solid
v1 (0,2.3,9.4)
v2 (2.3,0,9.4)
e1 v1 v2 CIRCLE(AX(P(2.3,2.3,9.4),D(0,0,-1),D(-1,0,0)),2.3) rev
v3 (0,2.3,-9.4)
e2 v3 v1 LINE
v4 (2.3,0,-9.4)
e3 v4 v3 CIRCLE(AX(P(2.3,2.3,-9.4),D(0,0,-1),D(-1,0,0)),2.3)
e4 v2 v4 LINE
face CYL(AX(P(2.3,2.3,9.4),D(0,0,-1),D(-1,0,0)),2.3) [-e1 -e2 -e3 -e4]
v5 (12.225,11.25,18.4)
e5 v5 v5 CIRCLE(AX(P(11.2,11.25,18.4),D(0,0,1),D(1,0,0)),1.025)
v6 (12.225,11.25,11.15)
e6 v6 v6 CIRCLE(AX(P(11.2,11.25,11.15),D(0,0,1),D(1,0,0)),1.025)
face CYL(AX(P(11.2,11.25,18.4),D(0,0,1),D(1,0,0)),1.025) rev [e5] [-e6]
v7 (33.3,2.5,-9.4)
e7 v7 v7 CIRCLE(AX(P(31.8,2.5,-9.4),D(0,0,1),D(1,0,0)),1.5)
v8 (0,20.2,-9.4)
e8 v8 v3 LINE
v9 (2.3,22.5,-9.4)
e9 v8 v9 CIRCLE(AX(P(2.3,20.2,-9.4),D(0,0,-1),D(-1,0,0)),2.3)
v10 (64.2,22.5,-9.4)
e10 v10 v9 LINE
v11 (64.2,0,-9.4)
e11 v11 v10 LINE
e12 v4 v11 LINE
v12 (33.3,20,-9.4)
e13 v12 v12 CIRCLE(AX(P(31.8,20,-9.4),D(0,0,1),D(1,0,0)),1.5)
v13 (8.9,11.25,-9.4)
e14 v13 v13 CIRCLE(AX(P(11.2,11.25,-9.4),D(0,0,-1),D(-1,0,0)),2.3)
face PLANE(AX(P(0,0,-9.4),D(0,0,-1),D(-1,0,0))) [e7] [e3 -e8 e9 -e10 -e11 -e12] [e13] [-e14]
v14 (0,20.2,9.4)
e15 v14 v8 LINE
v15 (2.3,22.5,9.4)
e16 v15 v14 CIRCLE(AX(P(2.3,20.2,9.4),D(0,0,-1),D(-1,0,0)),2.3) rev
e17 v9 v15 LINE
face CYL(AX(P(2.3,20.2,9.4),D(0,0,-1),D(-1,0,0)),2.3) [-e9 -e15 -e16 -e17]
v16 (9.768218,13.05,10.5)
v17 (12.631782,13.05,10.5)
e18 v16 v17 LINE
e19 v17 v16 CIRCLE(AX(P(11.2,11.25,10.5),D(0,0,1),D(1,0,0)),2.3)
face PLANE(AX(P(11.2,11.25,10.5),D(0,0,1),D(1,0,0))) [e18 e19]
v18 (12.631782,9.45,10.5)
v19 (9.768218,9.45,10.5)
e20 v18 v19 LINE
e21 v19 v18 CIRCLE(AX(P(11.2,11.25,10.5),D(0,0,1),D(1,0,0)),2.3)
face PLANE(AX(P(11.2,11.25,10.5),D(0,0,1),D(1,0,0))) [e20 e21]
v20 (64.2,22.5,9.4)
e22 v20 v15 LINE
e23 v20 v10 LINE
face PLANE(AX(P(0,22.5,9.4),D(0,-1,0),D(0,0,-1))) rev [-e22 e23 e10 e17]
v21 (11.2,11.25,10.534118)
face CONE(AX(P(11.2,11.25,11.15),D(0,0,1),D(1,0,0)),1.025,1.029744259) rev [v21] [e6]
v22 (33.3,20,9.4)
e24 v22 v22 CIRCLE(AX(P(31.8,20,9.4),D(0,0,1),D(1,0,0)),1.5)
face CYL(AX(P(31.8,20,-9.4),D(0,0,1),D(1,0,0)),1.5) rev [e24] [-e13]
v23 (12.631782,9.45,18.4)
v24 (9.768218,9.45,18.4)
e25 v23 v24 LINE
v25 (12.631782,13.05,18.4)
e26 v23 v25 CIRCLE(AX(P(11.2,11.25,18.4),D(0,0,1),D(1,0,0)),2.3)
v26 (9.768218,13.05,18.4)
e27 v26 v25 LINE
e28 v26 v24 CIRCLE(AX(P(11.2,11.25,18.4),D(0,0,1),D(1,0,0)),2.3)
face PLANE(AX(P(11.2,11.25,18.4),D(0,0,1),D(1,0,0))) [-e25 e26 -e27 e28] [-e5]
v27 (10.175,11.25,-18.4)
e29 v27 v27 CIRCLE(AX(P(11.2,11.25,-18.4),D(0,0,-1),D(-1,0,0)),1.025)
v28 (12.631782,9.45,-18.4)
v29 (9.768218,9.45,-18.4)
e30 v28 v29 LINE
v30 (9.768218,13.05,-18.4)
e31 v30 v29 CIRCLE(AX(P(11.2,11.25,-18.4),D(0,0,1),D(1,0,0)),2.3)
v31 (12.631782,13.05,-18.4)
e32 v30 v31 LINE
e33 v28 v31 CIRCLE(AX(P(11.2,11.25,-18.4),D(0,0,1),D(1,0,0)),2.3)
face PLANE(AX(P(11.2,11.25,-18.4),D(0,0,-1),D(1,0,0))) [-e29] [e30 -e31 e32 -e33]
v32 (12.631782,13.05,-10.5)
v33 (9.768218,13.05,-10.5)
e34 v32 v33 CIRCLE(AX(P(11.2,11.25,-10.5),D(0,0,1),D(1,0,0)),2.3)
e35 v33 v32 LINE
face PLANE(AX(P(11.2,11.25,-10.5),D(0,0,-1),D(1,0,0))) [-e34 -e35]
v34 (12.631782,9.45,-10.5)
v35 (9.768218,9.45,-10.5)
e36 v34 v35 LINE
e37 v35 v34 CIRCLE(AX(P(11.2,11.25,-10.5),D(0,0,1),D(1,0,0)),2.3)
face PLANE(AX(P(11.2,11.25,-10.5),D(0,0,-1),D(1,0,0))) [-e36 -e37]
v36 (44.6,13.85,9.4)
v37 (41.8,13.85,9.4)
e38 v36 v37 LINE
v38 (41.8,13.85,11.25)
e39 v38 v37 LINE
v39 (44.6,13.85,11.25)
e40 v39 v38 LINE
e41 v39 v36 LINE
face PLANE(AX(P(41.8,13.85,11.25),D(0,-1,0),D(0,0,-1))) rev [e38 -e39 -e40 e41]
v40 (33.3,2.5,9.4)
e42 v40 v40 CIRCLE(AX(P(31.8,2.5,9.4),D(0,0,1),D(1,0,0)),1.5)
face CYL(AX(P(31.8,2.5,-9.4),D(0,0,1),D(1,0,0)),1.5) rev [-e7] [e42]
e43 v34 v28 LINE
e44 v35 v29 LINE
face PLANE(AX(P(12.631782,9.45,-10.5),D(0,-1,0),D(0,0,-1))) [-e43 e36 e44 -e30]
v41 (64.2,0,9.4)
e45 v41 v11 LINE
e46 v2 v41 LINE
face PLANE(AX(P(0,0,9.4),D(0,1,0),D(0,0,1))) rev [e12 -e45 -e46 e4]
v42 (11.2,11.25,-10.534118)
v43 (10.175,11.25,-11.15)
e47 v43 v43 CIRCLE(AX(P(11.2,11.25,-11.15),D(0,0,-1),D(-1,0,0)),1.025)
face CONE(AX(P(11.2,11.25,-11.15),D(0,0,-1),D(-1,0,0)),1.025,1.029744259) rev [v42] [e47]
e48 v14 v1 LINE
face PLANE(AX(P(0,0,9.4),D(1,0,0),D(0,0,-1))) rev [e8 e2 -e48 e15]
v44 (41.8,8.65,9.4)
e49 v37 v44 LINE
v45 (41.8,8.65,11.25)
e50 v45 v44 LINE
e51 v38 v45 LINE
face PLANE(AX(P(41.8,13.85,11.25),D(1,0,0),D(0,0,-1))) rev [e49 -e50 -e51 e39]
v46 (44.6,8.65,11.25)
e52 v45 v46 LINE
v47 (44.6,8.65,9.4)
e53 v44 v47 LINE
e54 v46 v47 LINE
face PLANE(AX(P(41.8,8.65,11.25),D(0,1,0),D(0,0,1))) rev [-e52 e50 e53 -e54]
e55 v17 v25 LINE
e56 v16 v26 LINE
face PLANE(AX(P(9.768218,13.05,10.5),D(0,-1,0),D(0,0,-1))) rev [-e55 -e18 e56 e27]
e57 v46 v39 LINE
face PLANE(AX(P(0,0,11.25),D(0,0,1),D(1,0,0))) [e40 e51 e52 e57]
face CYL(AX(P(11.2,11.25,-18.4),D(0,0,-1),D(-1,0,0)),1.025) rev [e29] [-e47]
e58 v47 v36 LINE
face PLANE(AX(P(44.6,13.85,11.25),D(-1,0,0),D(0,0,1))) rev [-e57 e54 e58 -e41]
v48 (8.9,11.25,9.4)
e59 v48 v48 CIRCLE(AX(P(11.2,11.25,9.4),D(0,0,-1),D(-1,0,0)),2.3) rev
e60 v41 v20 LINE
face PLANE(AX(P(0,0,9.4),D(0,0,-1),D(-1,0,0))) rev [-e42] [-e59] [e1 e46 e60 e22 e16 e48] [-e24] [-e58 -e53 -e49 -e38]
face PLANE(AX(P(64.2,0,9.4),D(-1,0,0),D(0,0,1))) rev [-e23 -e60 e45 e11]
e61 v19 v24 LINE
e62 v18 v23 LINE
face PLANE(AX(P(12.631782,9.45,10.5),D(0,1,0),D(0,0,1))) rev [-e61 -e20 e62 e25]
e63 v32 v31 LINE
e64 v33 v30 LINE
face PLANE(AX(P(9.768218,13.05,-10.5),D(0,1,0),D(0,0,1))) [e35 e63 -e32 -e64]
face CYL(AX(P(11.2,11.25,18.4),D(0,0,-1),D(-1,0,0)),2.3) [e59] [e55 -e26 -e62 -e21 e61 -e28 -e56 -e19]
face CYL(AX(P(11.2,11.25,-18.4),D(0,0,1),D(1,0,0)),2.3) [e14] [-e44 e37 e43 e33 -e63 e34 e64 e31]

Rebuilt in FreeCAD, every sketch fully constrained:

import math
import FreeCAD as App
import Part
import Sketcher

V = App.Vector
Q = App.Units.Quantity


def edges_at(feature, points):
    """Names of the edges that pass closest to the given points."""
    edges = feature.Shape.Edges
    near = lambda p: min(range(len(edges)), key=lambda i: edges[i].distToShape(Part.Vertex(*p))[0])
    return sorted({f"Edge{near(p) + 1}" for p in points})


def add_polygon(sketch, points):
    """Adds a closed chain of lines whose ends are joined by coincident constraints."""
    first, n = sketch.GeometryCount, len(points)
    for a, b in zip(points, points[1:] + points[:1]):
        sketch.addGeometry(Part.LineSegment(App.Vector(*a, 0), App.Vector(*b, 0)), False)
    for i in range(n):
        sketch.addConstraint(Sketcher.Constraint("Coincident", first + i, 2, first + (i + 1) % n, 1))

doc = App.newDocument("Part")
body = doc.addObject("PartDesign::Body", "Body")

# Sketch on XY plane
sketch1 = body.newObject("Sketcher::SketchObject", "Sketch")
sketch1.AttachmentSupport = (doc.getObject("XY_Plane"), [""])
sketch1.MapMode = "FlatFace"
add_polygon(sketch1, [(0, 22.5), (0, 0), (64.2, 0), (64.2, 22.5)])  # lines 0-3
sketch1.addConstraint([
    Sketcher.Constraint("Vertical", 0),
    Sketcher.Constraint("Horizontal", 1),
    Sketcher.Constraint("Vertical", 2),
    Sketcher.Constraint("Horizontal", 3),
    Sketcher.Constraint("Coincident", 0, 2, -1, 1),
    Sketcher.Constraint("DistanceX", 1, 1, 1, 2, Q("64.2 mm")),
    Sketcher.Constraint("DistanceY", 0, 2, 0, 1, Q("22.5 mm")),
])
pad1 = body.newObject("PartDesign::Pad", "Pad")
pad1.Profile = sketch1
pad1.Length = 18.8
pad1.Midplane = True

# Sketch on XY plane
sketch2 = body.newObject("Sketcher::SketchObject", "Sketch001")
sketch2.AttachmentSupport = (doc.getObject("XY_Plane"), [""])
sketch2.MapMode = "FlatFace"
sketch2.AttachmentOffset = App.Placement(V(0, 0, 9.4), App.Rotation())
sketch2.addGeometry(Part.Circle(V(11.2, 11.25, 0), V(0, 0, 1), 2.3), False)
sketch2.addConstraint([
    Sketcher.Constraint("Diameter", 0, Q("4.6 mm")),
    Sketcher.Constraint("DistanceX", -1, 1, 0, 3, Q("11.2 mm")),
    Sketcher.Constraint("DistanceY", -1, 1, 0, 3, Q("11.25 mm")),
])
pad2 = body.newObject("PartDesign::Pad", "Pad001")
pad2.Profile = sketch2
pad2.Length = 9

# Sketch on XY plane
sketch3 = body.newObject("Sketcher::SketchObject", "Sketch002")
sketch3.AttachmentSupport = (doc.getObject("XY_Plane"), [""])
sketch3.MapMode = "FlatFace"
sketch3.AttachmentOffset = App.Placement(V(0, 0, 18.4), App.Rotation())
sketch3.addGeometry([
    Part.LineSegment(V(9.768218, 13.05, 0), V(12.631782, 13.05, 0)),
    Part.ArcOfCircle(Part.Circle(V(11.2, 11.25, 0), V(0, 0, 1), 2.3), math.radians(51.50005), math.radians(128.49995)),
    Part.LineSegment(V(12.631782, 9.45, 0), V(9.768218, 9.45, 0)),
    Part.ArcOfCircle(Part.Circle(V(11.2, 11.25, 0), V(0, 0, 1), 2.3), math.radians(-128.49995), math.radians(-51.50005)),
], False)
sketch3.addConstraint([
    Sketcher.Constraint("Coincident", 0, 1, 1, 2),
    Sketcher.Constraint("Coincident", 1, 1, 0, 2),
    Sketcher.Constraint("Coincident", 2, 1, 3, 2),
    Sketcher.Constraint("Coincident", 3, 1, 2, 2),
    Sketcher.Constraint("Horizontal", 0),
    Sketcher.Constraint("Horizontal", 2),
    Sketcher.Constraint("Coincident", 3, 3, 1, 3),
    Sketcher.Constraint("Equal", 1, 3),
    Sketcher.Constraint("Vertical", 1, 1, 2, 1),
    Sketcher.Constraint("Radius", 1, Q("2.3 mm")),
    Sketcher.Constraint("DistanceX", -1, 1, 1, 3, Q("11.2 mm")),
    Sketcher.Constraint("DistanceY", 1, 3, 0, 1, Q("1.8 mm")),
    Sketcher.Constraint("DistanceY", -1, 1, 1, 3, Q("11.25 mm")),
])
pocket1 = body.newObject("PartDesign::Pocket", "Pocket")
pocket1.Profile = sketch3
pocket1.Length = 7.9

# Sketch on XY plane
sketch4 = body.newObject("Sketcher::SketchObject", "Sketch003")
sketch4.AttachmentSupport = (doc.getObject("XY_Plane"), [""])
sketch4.MapMode = "FlatFace"
sketch4.AttachmentOffset = App.Placement(V(0, 0, 9.4), App.Rotation())
sketch4.addGeometry([
    Part.Circle(V(31.8, 20, 0), V(0, 0, 1), 1.5),
    Part.Circle(V(31.8, 2.5, 0), V(0, 0, 1), 1.5),
], False)
sketch4.addConstraint([
    Sketcher.Constraint("Equal", 0, 1),
    Sketcher.Constraint("Vertical", 0, 3, 1, 3),
    Sketcher.Constraint("Diameter", 0, Q("3 mm")),
    Sketcher.Constraint("DistanceY", -1, 1, 0, 3, Q("20 mm")),
    Sketcher.Constraint("DistanceX", -1, 1, 0, 3, Q("31.8 mm")),
    Sketcher.Constraint("DistanceY", -1, 1, 1, 3, Q("2.5 mm")),
])
pocket2 = body.newObject("PartDesign::Pocket", "Pocket001")
pocket2.Profile = sketch4
pocket2.Type = "ThroughAll"

# Sketch on YZ plane
sketch5 = body.newObject("Sketcher::SketchObject", "Sketch004")
sketch5.AttachmentSupport = (doc.getObject("YZ_Plane"), [""])
sketch5.MapMode = "FlatFace"
sketch5.AttachmentOffset = App.Placement(V(0, 0, 11.2), App.Rotation())
add_polygon(sketch5, [(11.25, 10.534118), (11.25, 18.4), (10.225, 18.4), (10.225, 11.15)])  # lines 0-3
sketch5.addGeometry(Part.LineSegment(V(11.25, 18.4, 0), V(11.25, 10.534118, 0)), True)  # axis
sketch5.addConstraint([
    Sketcher.Constraint("Vertical", 0),
    Sketcher.Constraint("Horizontal", 1),
    Sketcher.Constraint("Vertical", 2),
    Sketcher.Constraint("Vertical", 4),
    Sketcher.Constraint("Coincident", 4, 1, 0, 2),
    Sketcher.Constraint("Equal", 0, 4),
    Sketcher.Constraint("Angle", 3, Q("-31 deg")),
    Sketcher.Constraint("DistanceY", 2, 2, 2, 1, Q("7.25 mm")),
    Sketcher.Constraint("DistanceY", -1, 1, 0, 2, Q("18.4 mm")),
    Sketcher.Constraint("DistanceX", 1, 2, 1, 1, Q("1.025 mm")),
    Sketcher.Constraint("DistanceX", -1, 1, 0, 2, Q("11.25 mm")),
])
groove = body.newObject("PartDesign::Groove", "Groove")
groove.Profile = sketch5
groove.ReferenceAxis = (sketch5, ["Axis0"])
groove.Angle = 360
doc.recompute()

mirrored = body.newObject("PartDesign::Mirrored", "Mirrored")
mirrored.Originals = [pad2, pocket1, groove]
mirrored.MirrorPlane = (doc.getObject("XY_Plane"), [""])
body.Tip = mirrored
doc.recompute()

fillet = body.newObject("PartDesign::Fillet", "Fillet")
fillet.Base = (mirrored, edges_at(mirrored, [(0, 22.5, 0), (0, 0, 0)]))
fillet.Radius = 2.3

# Sketch on XY plane
sketch6 = body.newObject("Sketcher::SketchObject", "Sketch005")
sketch6.AttachmentSupport = (doc.getObject("XY_Plane"), [""])
sketch6.MapMode = "FlatFace"
sketch6.AttachmentOffset = App.Placement(V(0, 0, 9.4), App.Rotation())
add_polygon(sketch6, [(41.8, 13.85), (41.8, 8.65), (44.6, 8.65), (44.6, 13.85)])  # lines 0-3
sketch6.addConstraint([
    Sketcher.Constraint("Vertical", 0),
    Sketcher.Constraint("Horizontal", 1),
    Sketcher.Constraint("Vertical", 2),
    Sketcher.Constraint("Horizontal", 3),
    Sketcher.Constraint("DistanceX", 1, 1, 1, 2, Q("2.8 mm")),
    Sketcher.Constraint("DistanceY", 0, 2, 0, 1, Q("5.2 mm")),
    Sketcher.Constraint("DistanceX", -1, 1, 0, 2, Q("41.8 mm")),
    Sketcher.Constraint("DistanceY", -1, 1, 0, 2, Q("8.65 mm")),
])
pad3 = body.newObject("PartDesign::Pad", "Pad002")
pad3.Profile = sketch6
pad3.Length = 1.85

doc.recompute()
